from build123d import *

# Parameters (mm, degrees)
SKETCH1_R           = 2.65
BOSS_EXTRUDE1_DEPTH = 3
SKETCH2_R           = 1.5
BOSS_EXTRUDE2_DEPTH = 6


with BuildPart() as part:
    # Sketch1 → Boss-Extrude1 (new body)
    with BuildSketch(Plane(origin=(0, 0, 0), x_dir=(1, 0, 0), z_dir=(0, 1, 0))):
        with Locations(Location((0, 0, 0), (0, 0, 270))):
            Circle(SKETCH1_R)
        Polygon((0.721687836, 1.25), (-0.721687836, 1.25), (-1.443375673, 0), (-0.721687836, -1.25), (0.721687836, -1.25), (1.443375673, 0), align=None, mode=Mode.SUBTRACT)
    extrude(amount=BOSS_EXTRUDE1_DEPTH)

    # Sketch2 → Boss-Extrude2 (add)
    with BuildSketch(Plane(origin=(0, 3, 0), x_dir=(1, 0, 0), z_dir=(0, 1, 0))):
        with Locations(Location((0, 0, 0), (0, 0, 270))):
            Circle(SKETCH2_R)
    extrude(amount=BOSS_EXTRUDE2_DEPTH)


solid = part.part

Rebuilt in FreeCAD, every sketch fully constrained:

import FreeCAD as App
import Part
import Sketcher
from FreeCAD import Vector
Q = App.Units.Quantity


def add_polygon(sketch, points):
    """Adds a closed chain of lines whose ends are joined by coincident constraints."""
    first, n = sketch.GeometryCount, len(points)
    for a, b in zip(points, points[1:] + points[:1]):
        sketch.addGeometry(Part.LineSegment(App.Vector(*a, 0), App.Vector(*b, 0)), False)
    for i in range(n):
        sketch.addConstraint(Sketcher.Constraint("Coincident", first + i, 2, first + (i + 1) % n, 1))

doc = App.newDocument("Part")
body = doc.addObject("PartDesign::Body", "Body")

sketch1 = doc.addObject("Sketcher::SketchObject", "Sketch")
body.addObject(sketch1)
sketch1.AttachmentSupport = (doc.XZ_Plane, [""])
sketch1.MapMode = "FlatFace"
sketch1.addGeometry(Part.Circle(Vector(0, 0, 0), Vector(0, 0, 1), 2.65), False)
add_polygon(sketch1, [(-0.721688, -1.25), (0.721688, -1.25), (1.443376, 0), (0.721688, 1.25), (-0.721688, 1.25), (-1.443376, 0)])
sketch1.addConstraint([
    Sketcher.Constraint("Horizontal", 1),
    Sketcher.Constraint("Horizontal", 4),
    Sketcher.Constraint("Coincident", 0, 3, -1, 1),
    Sketcher.Constraint("Symmetric", 1, 2, 4, 2, -1, 1),
    Sketcher.Constraint("Symmetric", 2, 2, 5, 2, -1, 1),
    Sketcher.Constraint("PointOnObject", 2, 2, -1),
    Sketcher.Constraint("Parallel", 3, 6),
    Sketcher.Constraint("Vertical", 1, 2, 3, 2),
    Sketcher.Constraint("Diameter", 0, 5.3),
    Sketcher.Constraint("Angle", 2, Q("60 deg")),
    Sketcher.Constraint("DistanceY", 1, 2, 3, 2, 2.5),
    Sketcher.Constraint("DistanceX", 1, 1, 1, 2, 1.443376),
])
pad1 = doc.addObject("PartDesign::Pad", "Pad")
body.addObject(pad1)
pad1.Profile = sketch1
pad1.Length = 3
pad1.Reversed = True

sketch2 = doc.addObject("Sketcher::SketchObject", "Sketch001")
body.addObject(sketch2)
sketch2.AttachmentSupport = (doc.XZ_Plane, [""])
sketch2.MapMode = "FlatFace"
sketch2.AttachmentOffset = App.Placement(Vector(0, 0, -3), App.Rotation())
sketch2.addGeometry(Part.Circle(Vector(0, 0, 0), Vector(0, 0, 1), 1.5), False)
sketch2.addConstraint([
    Sketcher.Constraint("Coincident", 0, 3, -1, 1),
    Sketcher.Constraint("Diameter", 0, 3.0),
])
pad2 = doc.addObject("PartDesign::Pad", "Pad001")
body.addObject(pad2)
pad2.Profile = sketch2
pad2.Length = 6
pad2.Reversed = True

doc.recompute()
